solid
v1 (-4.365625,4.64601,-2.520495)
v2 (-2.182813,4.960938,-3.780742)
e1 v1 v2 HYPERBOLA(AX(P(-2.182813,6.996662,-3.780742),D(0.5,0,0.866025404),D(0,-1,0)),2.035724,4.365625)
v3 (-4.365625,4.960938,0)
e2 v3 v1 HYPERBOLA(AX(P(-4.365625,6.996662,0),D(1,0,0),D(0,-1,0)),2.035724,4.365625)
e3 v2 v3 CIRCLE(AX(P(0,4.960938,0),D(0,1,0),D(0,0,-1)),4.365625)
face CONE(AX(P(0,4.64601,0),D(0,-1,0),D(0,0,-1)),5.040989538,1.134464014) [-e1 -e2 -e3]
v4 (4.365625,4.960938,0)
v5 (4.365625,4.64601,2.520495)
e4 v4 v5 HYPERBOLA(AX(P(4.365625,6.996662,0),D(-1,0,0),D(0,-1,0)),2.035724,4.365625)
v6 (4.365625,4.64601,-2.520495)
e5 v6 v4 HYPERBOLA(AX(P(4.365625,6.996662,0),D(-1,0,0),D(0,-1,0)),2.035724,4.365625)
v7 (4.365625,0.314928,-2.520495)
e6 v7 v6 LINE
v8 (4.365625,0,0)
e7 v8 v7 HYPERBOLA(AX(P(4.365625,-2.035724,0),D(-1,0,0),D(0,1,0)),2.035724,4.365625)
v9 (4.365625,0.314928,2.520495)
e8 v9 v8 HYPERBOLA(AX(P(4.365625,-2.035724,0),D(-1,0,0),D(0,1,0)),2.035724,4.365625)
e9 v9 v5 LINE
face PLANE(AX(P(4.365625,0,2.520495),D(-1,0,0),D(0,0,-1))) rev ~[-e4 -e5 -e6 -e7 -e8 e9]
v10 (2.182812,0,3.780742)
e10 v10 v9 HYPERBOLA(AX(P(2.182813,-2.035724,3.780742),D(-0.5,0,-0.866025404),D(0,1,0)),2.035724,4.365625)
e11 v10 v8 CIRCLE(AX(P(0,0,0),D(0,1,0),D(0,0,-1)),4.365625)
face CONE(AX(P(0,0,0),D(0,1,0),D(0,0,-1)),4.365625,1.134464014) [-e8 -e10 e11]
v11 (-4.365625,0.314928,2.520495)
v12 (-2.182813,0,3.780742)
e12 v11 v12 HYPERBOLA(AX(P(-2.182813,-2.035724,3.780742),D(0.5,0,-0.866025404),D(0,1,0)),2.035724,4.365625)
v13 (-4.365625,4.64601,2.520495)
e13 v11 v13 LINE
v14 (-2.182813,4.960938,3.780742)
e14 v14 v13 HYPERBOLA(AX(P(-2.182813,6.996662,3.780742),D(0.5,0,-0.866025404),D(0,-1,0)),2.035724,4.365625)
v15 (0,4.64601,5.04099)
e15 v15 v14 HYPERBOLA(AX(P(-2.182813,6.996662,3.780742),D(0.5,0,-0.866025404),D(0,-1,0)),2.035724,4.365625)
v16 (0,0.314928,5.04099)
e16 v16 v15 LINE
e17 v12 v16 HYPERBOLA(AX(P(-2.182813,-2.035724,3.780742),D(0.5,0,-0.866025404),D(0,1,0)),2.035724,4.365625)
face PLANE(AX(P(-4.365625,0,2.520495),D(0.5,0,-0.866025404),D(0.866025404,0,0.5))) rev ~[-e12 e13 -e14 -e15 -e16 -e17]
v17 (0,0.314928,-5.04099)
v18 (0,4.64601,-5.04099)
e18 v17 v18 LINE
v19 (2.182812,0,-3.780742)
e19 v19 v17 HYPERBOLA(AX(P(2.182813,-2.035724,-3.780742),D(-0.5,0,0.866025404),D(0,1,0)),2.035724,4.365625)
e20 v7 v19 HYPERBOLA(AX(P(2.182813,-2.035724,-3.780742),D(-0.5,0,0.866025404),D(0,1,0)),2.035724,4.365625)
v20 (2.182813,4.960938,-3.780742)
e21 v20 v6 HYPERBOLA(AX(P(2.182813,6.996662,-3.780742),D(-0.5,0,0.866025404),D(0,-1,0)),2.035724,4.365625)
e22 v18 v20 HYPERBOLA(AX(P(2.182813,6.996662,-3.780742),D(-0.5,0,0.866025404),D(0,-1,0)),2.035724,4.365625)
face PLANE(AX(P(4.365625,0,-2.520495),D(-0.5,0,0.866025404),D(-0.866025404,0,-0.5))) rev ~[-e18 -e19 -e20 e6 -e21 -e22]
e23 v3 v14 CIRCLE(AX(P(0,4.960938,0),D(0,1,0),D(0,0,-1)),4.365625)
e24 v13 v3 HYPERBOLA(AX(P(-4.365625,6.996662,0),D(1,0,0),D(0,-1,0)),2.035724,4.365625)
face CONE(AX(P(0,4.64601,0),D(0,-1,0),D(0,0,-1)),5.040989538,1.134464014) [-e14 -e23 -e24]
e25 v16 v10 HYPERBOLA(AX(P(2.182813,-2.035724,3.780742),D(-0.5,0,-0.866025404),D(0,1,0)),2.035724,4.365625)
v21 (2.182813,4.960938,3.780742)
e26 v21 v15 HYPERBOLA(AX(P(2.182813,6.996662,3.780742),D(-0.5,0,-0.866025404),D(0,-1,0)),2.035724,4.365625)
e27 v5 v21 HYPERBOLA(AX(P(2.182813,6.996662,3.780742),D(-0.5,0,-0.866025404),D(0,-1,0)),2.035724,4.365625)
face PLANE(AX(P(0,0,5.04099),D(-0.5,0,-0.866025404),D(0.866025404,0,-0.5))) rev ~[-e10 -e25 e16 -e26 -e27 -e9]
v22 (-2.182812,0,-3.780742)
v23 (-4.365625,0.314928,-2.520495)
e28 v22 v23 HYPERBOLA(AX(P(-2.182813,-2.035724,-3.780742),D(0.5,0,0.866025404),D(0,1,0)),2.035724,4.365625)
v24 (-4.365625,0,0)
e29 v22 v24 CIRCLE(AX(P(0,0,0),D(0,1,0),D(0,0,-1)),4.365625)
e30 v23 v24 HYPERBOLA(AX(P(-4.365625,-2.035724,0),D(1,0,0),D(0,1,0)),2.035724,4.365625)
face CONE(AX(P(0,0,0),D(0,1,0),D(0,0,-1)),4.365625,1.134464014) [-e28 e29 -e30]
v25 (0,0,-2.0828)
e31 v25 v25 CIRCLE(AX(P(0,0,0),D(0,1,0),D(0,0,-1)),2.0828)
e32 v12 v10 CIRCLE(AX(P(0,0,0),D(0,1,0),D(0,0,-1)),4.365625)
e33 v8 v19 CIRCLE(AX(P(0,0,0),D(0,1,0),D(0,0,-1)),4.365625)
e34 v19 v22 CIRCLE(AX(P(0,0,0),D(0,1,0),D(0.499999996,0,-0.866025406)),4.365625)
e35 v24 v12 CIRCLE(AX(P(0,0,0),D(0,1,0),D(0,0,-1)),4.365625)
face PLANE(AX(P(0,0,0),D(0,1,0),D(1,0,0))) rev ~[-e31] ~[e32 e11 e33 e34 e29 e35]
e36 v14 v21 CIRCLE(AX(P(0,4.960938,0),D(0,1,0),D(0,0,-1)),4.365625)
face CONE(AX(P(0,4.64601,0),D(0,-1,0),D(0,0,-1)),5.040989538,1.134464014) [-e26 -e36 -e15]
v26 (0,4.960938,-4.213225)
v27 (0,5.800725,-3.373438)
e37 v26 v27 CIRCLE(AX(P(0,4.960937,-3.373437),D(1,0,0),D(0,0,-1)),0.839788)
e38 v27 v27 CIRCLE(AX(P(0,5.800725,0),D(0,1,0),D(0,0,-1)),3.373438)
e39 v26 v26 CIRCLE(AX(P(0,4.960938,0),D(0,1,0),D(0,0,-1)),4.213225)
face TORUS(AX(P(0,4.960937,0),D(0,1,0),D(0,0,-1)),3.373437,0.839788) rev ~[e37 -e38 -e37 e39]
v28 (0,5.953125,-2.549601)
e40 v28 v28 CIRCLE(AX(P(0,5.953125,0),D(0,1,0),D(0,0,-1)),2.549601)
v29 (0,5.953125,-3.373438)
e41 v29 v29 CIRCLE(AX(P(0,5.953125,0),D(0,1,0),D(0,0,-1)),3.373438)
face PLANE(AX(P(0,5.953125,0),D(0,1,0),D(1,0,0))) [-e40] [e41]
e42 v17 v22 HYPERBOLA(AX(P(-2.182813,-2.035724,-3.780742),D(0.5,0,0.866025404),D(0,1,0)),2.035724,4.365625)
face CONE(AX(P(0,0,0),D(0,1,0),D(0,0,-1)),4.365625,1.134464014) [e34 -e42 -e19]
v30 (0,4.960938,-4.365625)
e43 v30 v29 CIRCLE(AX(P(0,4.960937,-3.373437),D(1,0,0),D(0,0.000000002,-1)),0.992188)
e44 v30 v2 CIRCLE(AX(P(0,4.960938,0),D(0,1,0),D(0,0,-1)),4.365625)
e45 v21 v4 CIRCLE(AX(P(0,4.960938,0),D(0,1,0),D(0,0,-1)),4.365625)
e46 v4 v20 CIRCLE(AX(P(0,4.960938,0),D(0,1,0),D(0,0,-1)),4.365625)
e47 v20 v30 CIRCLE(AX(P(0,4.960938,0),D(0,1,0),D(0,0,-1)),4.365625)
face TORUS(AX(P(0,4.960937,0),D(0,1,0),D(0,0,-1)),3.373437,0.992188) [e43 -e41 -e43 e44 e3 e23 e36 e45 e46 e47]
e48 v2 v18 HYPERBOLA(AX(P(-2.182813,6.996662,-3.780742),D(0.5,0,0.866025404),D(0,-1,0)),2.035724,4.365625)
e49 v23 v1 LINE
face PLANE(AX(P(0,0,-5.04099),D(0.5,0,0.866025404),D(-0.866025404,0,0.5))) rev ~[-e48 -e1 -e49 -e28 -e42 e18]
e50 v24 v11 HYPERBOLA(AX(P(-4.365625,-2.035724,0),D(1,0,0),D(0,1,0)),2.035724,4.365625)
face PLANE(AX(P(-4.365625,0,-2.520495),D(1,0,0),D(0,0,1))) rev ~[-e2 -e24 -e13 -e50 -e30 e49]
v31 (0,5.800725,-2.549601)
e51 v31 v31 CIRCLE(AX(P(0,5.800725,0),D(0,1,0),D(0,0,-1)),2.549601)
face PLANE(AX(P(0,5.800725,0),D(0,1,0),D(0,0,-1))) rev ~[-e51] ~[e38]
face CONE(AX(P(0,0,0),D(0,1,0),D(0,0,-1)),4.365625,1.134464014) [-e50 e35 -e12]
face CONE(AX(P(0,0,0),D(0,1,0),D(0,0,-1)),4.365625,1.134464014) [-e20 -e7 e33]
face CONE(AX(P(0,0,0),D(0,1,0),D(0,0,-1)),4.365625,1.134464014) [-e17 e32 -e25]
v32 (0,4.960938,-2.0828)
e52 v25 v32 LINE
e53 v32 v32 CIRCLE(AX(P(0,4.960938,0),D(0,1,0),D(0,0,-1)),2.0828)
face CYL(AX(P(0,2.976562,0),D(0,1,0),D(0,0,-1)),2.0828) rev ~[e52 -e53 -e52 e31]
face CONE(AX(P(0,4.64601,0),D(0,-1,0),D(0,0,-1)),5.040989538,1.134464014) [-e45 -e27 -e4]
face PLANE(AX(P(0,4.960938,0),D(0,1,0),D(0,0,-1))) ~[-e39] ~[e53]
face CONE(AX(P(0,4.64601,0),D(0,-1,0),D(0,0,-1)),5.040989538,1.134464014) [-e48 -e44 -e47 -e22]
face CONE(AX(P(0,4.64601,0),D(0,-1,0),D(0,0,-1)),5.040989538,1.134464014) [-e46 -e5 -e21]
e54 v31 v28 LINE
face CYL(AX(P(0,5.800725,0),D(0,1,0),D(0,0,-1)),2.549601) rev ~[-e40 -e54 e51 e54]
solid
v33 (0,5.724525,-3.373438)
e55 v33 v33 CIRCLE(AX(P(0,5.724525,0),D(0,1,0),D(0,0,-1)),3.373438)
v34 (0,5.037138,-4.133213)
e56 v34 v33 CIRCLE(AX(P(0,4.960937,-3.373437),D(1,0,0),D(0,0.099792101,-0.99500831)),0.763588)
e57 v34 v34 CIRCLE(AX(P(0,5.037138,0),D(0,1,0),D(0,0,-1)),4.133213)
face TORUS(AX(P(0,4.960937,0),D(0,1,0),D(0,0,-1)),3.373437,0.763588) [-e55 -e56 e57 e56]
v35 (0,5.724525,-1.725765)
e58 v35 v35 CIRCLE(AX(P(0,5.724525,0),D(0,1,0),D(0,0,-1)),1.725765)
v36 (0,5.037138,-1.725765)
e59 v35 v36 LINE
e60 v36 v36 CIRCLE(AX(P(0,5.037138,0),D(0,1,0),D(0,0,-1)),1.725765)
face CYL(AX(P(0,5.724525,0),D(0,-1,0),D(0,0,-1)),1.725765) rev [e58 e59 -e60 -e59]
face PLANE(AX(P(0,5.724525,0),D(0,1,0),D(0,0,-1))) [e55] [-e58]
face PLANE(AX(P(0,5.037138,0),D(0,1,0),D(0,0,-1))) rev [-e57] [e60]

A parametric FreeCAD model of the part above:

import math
import FreeCAD as App
import Part
import Sketcher
Q = App.Units.Quantity


def add_polygon(sketch, points):
    """Adds a closed chain of lines whose ends are joined by coincident constraints."""
    first, n = sketch.GeometryCount, len(points)
    for a, b in zip(points, points[1:] + points[:1]):
        sketch.addGeometry(Part.LineSegment(App.Vector(*a, 0), App.Vector(*b, 0)), False)
    for i in range(n):
        sketch.addConstraint(Sketcher.Constraint("Coincident", first + i, 2, first + (i + 1) % n, 1))

doc = App.newDocument("Part")
body = doc.addObject("PartDesign::Body", "Body")

# Sketch on XZ plane
sketch1 = body.newObject("Sketcher::SketchObject", "Sketch")
sketch1.AttachmentSupport = (doc.getObject("XZ_Plane"), [""])
sketch1.MapMode = "FlatFace"
add_polygon(sketch1, [(0, -5), (-4, -3), (-4, 3), (0, 5), (4, 3), (4, -3)])  # lines 0-5
sketch1.addConstraint([
    Sketcher.Constraint("Vertical", 1),
    Sketcher.Constraint("Vertical", 4),
    Sketcher.Constraint("Symmetric", 0, 2, 3, 2, -1, 1),
    Sketcher.Constraint("Symmetric", 2, 2, 5, 2, -1, 1),
    Sketcher.Constraint("PointOnObject", 2, 2, -2),
    Sketcher.Constraint("Parallel", 2, 5),
    Sketcher.Constraint("Horizontal", 1, 2, 3, 2),
    Sketcher.Constraint("Angle", 0, Q("150 deg")),
    Sketcher.Constraint("DistanceX", 0, 2, -1, 1, Q("0.171875 in")),
    Sketcher.Constraint("DistanceY", 1, 1, 1, 2, 5.04099),
])
pad1 = body.newObject("PartDesign::Pad", "Pad")
pad1.Profile = sketch1
pad1.Length = Q("0.234375 in")
pad1.Reversed = True

# Sketch on YZ plane
sketch2 = body.newObject("Sketcher::SketchObject", "Sketch001")
sketch2.AttachmentSupport = (doc.getObject("YZ_Plane"), [""])
sketch2.MapMode = "FlatFace"
add_polygon(sketch2, [(5.95, -2.08), (5.95, 0), (0, 0), (0, -2.08), (0.17, -1.73), (5.79, -1.73)])  # lines 0-5
sketch2.addConstraint([
    Sketcher.Constraint("Vertical", 0),
    Sketcher.Constraint("Horizontal", 1),
    Sketcher.Constraint("Vertical", 2),
    Sketcher.Constraint("Horizontal", 4),
    Sketcher.Constraint("Coincident", 1, 2, -1, 1),
    Sketcher.Constraint("Horizontal", 2, 2, 5, 2),
    Sketcher.Constraint("Equal", 3, 5),
    Sketcher.Constraint("Angle", 3, Q("65 deg")),
    Sketcher.Constraint("DistanceX", 1, 2, 1, 1, Q("0.234375 in")),
    Sketcher.Constraint("DistanceY", 0, 1, 0, 2, Q("0.082 in")),
    Sketcher.Constraint("DistanceX", 4, 1, 4, 2, 5.620149),
])
groove = body.newObject("PartDesign::Groove", "Groove")
groove.Profile = sketch2
groove.ReferenceAxis = (sketch2, ["H_Axis"])
groove.Angle = 360
body2 = doc.addObject("PartDesign::Body", "Body001")

# Sketch on YZ plane
sketch3 = body2.newObject("Sketcher::SketchObject", "Sketch002")
sketch3.AttachmentSupport = (doc.getObject("YZ_Plane001"), [""])
sketch3.MapMode = "FlatFace"
add_polygon(sketch3, [(6, 0), (0, 0), (0, -2.1), (6, -2.1)])  # lines 0-3
sketch3.addConstraint([
    Sketcher.Constraint("Horizontal", 0),
    Sketcher.Constraint("Vertical", 1),
    Sketcher.Constraint("Horizontal", 2),
    Sketcher.Constraint("Vertical", 3),
    Sketcher.Constraint("Coincident", 0, 2, -1, 1),
    Sketcher.Constraint("DistanceX", 0, 2, 0, 1, Q("0.234375 in")),
    Sketcher.Constraint("DistanceY", 1, 2, 1, 1, Q("0.082 in")),
])
revolution = body2.newObject("PartDesign::Revolution", "Revolution")
revolution.Profile = sketch3
revolution.ReferenceAxis = (sketch3, ["H_Axis"])
revolution.Angle = 360
doc.recompute()

boolean = body.newObject("PartDesign::Boolean", "Boolean")
boolean.Type = "Cut"
boolean.addObjects([body2])

# Sketch on YZ plane
sketch4 = body.newObject("Sketcher::SketchObject", "Sketch003")
sketch4.AttachmentSupport = (doc.getObject("YZ_Plane"), [""])
sketch4.MapMode = "FlatFace"
sketch4.addGeometry([
    Part.LineSegment(App.Vector(0, -4.4, 0), App.Vector(0, 0, 0)),  # 0
    Part.LineSegment(App.Vector(0, 0, 0), App.Vector(-1.3, 0, 0)),  # 1
    Part.LineSegment(App.Vector(-1.3, 0, 0), App.Vector(-1.3, -6.3, 0)),  # 2
    Part.LineSegment(App.Vector(-1.3, -6.3, 0), App.Vector(7.2, -6.3, 0)),  # 3
    Part.LineSegment(App.Vector(7.2, -6.3, 0), App.Vector(7.2, -3.4, 0)),  # 4
    Part.LineSegment(App.Vector(7.2, -3.4, 0), App.Vector(6, -3.4, 0)),  # 5
    Part.ArcOfCircle(Part.Circle(App.Vector(5, -3.4, 0), App.Vector(0, 0, 1), 1), math.radians(-90), math.radians(0)),  # 6
    Part.LineSegment(App.Vector(5, -4.4, 0), App.Vector(4.6, -5, 0)),  # 7
    Part.LineSegment(App.Vector(4.6, -5, 0), App.Vector(0.3, -5, 0)),  # 8
    Part.LineSegment(App.Vector(0.3, -5, 0), App.Vector(0, -4.4, 0)),  # 9
], False)
sketch4.addConstraint([
    Sketcher.Constraint("Coincident", 0, 2, 1, 1),
    Sketcher.Constraint("Coincident", 1, 2, 2, 1),
    Sketcher.Constraint("Coincident", 2, 2, 3, 1),
    Sketcher.Constraint("Coincident", 3, 2, 4, 1),
    Sketcher.Constraint("Coincident", 4, 2, 5, 1),
    Sketcher.Constraint("Coincident", 5, 2, 6, 2),
    Sketcher.Constraint("Coincident", 6, 1, 7, 1),
    Sketcher.Constraint("Coincident", 7, 2, 8, 1),
    Sketcher.Constraint("Coincident", 8, 2, 9, 1),
    Sketcher.Constraint("Coincident", 9, 2, 0, 1),
    Sketcher.Constraint("Vertical", 0),
    Sketcher.Constraint("Horizontal", 1),
    Sketcher.Constraint("Vertical", 2),
    Sketcher.Constraint("Horizontal", 3),
    Sketcher.Constraint("Vertical", 4),
    Sketcher.Constraint("Horizontal", 5),
    Sketcher.Constraint("Horizontal", 8),
    Sketcher.Constraint("Coincident", 0, 2, -1, 1),
    Sketcher.Constraint("Horizontal", 6, 3, 4, 2),
    Sketcher.Constraint("Horizontal", 6, 1, 9, 2),
    Sketcher.Constraint("Equal", 1, 5),
    Sketcher.Constraint("Equal", 7, 9),
    Sketcher.Constraint("Angle", 7, Q("-115 deg")),
    Sketcher.Constraint("DistanceX", 1, 2, 1, 1, Q("0.05 in")),
    Sketcher.Constraint("DistanceY", 0, 1, 0, 2, Q("0.171875 in")),
    Sketcher.Constraint("DistanceY", 3, 2, 7, 2, Q("0.05 in")),
    Sketcher.Constraint("DistanceX", -1, 1, 5, 2, Q("0.234375 in")),
    Sketcher.Constraint("Radius", 6, 0.992188),
    Sketcher.Constraint("DistanceY", 2, 2, 2, 1, 6.31099),
    Sketcher.Constraint("DistanceX", 8, 2, 8, 1, 4.331082),
])
groove2 = body.newObject("PartDesign::Groove", "Groove001")
groove2.Profile = sketch4
groove2.ReferenceAxis = (sketch4, ["H_Axis"])
groove2.Angle = 360

# Sketch on YZ plane
sketch5 = body.newObject("Sketcher::SketchObject", "Sketch004")
sketch5.AttachmentSupport = (doc.getObject("YZ_Plane"), [""])
sketch5.MapMode = "FlatFace"
sketch5.addGeometry([
    Part.LineSegment(App.Vector(5, 0, 0), App.Vector(5, -4.2, 0)),  # 0
    Part.ArcOfCircle(Part.Circle(App.Vector(5, -3.4, 0), App.Vector(0, 0, 1), 0.8), math.radians(-90), math.radians(0)),  # 1
    Part.LineSegment(App.Vector(5.8, -3.4, 0), App.Vector(5.8, -2.5, 0)),  # 2
    Part.LineSegment(App.Vector(5.8, -2.5, 0), App.Vector(7.2, -2.5, 0)),  # 3
    Part.LineSegment(App.Vector(7.2, -2.5, 0), App.Vector(7.2, 0, 0)),  # 4
    Part.LineSegment(App.Vector(7.2, 0, 0), App.Vector(5, 0, 0)),  # 5
], False)
sketch5.addConstraint([
    Sketcher.Constraint("Coincident", 0, 2, 1, 1),
    Sketcher.Constraint("Tangent", 1, 2, 2, 1),
    Sketcher.Constraint("Coincident", 2, 2, 3, 1),
    Sketcher.Constraint("Coincident", 3, 2, 4, 1),
    Sketcher.Constraint("Coincident", 4, 2, 5, 1),
    Sketcher.Constraint("Coincident", 5, 2, 0, 1),
    Sketcher.Constraint("Vertical", 0),
    Sketcher.Constraint("Vertical", 2),
    Sketcher.Constraint("Horizontal", 3),
    Sketcher.Constraint("Vertical", 4),
    Sketcher.Constraint("Horizontal", 5),
    Sketcher.Constraint("PointOnObject", 4, 2, -1),
    Sketcher.Constraint("Vertical", 1, 3, 0, 2),
    Sketcher.Constraint("DistanceX", 3, 1, 3, 2, Q("0.056 in")),
    Sketcher.Constraint("DistanceY", 4, 1, 4, 2, 2.549601),
    Sketcher.Constraint("Radius", 1, 0.839788),
    Sketcher.Constraint("DistanceY", 0, 2, 0, 1, 4.213225),
    Sketcher.Constraint("DistanceX", -1, 1, 1, 3, 4.960938),
])
groove3 = body.newObject("PartDesign::Groove", "Groove002")
groove3.Profile = sketch5
groove3.ReferenceAxis = (sketch5, ["H_Axis"])
groove3.Angle = 360
body3 = doc.addObject("PartDesign::Body", "Body002")

# Sketch on YZ plane
sketch6 = body3.newObject("Sketcher::SketchObject", "Sketch005")
sketch6.AttachmentSupport = (doc.getObject("YZ_Plane002"), [""])
sketch6.MapMode = "FlatFace"
sketch6.addGeometry([
    Part.LineSegment(App.Vector(5, -1.7, 0), App.Vector(5, -4.1, 0)),
    Part.ArcOfCircle(Part.Circle(App.Vector(5, -3.4, 0), App.Vector(0, 0, 1), 0.8), math.radians(-84), math.radians(0)),
    Part.LineSegment(App.Vector(5.7, -3.4, 0), App.Vector(5.7, -1.7, 0)),
    Part.LineSegment(App.Vector(5.7, -1.7, 0), App.Vector(5, -1.7, 0)),
], False)
sketch6.addConstraint([
    Sketcher.Constraint("Coincident", 0, 2, 1, 1),
    Sketcher.Constraint("Tangent", 1, 2, 2, 1),
    Sketcher.Constraint("Coincident", 2, 2, 3, 1),
    Sketcher.Constraint("Coincident", 3, 2, 0, 1),
    Sketcher.Constraint("Vertical", 0),
    Sketcher.Constraint("Vertical", 2),
    Sketcher.Constraint("Horizontal", 3),
    Sketcher.Constraint("DistanceX", 1, 3, 0, 2, Q("0.003 in")),
    Sketcher.Constraint("Radius", 1, 0.763588),
    Sketcher.Constraint("DistanceY", 0, 2, 0, 1, 2.407448),
    Sketcher.Constraint("DistanceX", -1, 1, 1, 3, 4.960937),
    Sketcher.Constraint("DistanceY", 1, 3, -1, 1, 3.373437),
])
revolution2 = body3.newObject("PartDesign::Revolution", "Revolution001")
revolution2.Profile = sketch6
revolution2.ReferenceAxis = (sketch6, ["H_Axis"])
revolution2.Angle = 360

doc.recompute()
